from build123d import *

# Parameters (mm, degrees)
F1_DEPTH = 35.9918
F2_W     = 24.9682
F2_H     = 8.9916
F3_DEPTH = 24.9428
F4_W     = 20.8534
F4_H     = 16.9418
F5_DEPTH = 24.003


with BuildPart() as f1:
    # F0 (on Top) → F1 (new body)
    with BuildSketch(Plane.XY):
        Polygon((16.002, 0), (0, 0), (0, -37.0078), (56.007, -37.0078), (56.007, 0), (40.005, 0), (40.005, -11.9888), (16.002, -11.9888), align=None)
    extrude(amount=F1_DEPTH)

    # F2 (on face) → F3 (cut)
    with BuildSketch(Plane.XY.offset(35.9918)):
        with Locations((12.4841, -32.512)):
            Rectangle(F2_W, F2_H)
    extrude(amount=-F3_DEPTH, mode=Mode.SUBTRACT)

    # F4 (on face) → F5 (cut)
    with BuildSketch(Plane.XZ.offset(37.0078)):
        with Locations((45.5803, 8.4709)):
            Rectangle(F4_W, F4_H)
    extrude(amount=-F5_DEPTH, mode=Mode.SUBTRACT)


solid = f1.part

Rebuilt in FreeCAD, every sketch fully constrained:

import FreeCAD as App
import Part
import Sketcher
from FreeCAD import Vector
Q = App.Units.Quantity


def add_polygon(sketch, points):
    """Adds a closed chain of lines whose ends are joined by coincident constraints."""
    first, n = sketch.GeometryCount, len(points)
    for a, b in zip(points, points[1:] + points[:1]):
        sketch.addGeometry(Part.LineSegment(App.Vector(*a, 0), App.Vector(*b, 0)), False)
    for i in range(n):
        sketch.addConstraint(Sketcher.Constraint("Coincident", first + i, 2, first + (i + 1) % n, 1))

doc = App.newDocument("Part")
body = doc.addObject("PartDesign::Body", "Body")

sketch1 = doc.addObject("Sketcher::SketchObject", "Sketch")
body.addObject(sketch1)
sketch1.AttachmentSupport = (doc.XY_Plane, [""])
sketch1.MapMode = "FlatFace"
add_polygon(sketch1, [(16, 0), (0, 0), (0, -37), (56, -37), (56, 0), (40, 0), (40, -12), (16, -12)])
sketch1.addConstraint([
    Sketcher.Constraint("Horizontal", 0),
    Sketcher.Constraint("Vertical", 1),
    Sketcher.Constraint("Horizontal", 2),
    Sketcher.Constraint("Vertical", 3),
    Sketcher.Constraint("Horizontal", 4),
    Sketcher.Constraint("Vertical", 5),
    Sketcher.Constraint("Horizontal", 6),
    Sketcher.Constraint("Vertical", 7),
    Sketcher.Constraint("Coincident", 0, 2, -1, 1),
    Sketcher.Constraint("PointOnObject", 3, 2, -1),
    Sketcher.Constraint("Equal", 0, 4),
    Sketcher.Constraint("DistanceX", 0, 2, 0, 1, Q("0.63 in")),
    Sketcher.Constraint("DistanceX", 2, 1, 2, 2, Q("2.205 in")),
    Sketcher.Constraint("DistanceY", 1, 2, 1, 1, Q("1.457 in")),
    Sketcher.Constraint("DistanceY", 5, 2, 5, 1, Q("0.472 in")),
])
pad1 = doc.addObject("PartDesign::Pad", "Pad")
body.addObject(pad1)
pad1.Profile = sketch1
pad1.Length = Q("1.417 in")

sketch2 = doc.addObject("Sketcher::SketchObject", "Sketch001")
body.addObject(sketch2)
sketch2.AttachmentSupport = (doc.XY_Plane, [""])
sketch2.MapMode = "FlatFace"
sketch2.AttachmentOffset = App.Placement(Vector(0, 0, 1.417 * 25.4), App.Rotation())
add_polygon(sketch2, [(0, -28), (0, -37), (25, -37), (25, -28)])
sketch2.addConstraint([
    Sketcher.Constraint("Vertical", 0),
    Sketcher.Constraint("Horizontal", 1),
    Sketcher.Constraint("Vertical", 2),
    Sketcher.Constraint("Horizontal", 3),
    Sketcher.Constraint("PointOnObject", 0, 2, -2),
    Sketcher.Constraint("DistanceX", 1, 1, 1, 2, Q("0.983 in")),
    Sketcher.Constraint("DistanceY", 0, 2, 0, 1, Q("0.354 in")),
    Sketcher.Constraint("DistanceY", 0, 2, -1, 1, Q("1.457 in")),
])
pocket1 = doc.addObject("PartDesign::Pocket", "Pocket")
body.addObject(pocket1)
pocket1.Profile = sketch2
pocket1.Length = Q("0.982 in")

sketch3 = doc.addObject("Sketcher::SketchObject", "Sketch002")
body.addObject(sketch3)
sketch3.AttachmentSupport = (doc.XZ_Plane, [""])
sketch3.MapMode = "FlatFace"
sketch3.AttachmentOffset = App.Placement(Vector(0, 0, 1.457 * 25.4), App.Rotation())
add_polygon(sketch3, [(35, 17), (35, 0), (56, 0), (56, 17)])
sketch3.addConstraint([
    Sketcher.Constraint("Vertical", 0),
    Sketcher.Constraint("Horizontal", 1),
    Sketcher.Constraint("Vertical", 2),
    Sketcher.Constraint("Horizontal", 3),
    Sketcher.Constraint("PointOnObject", 0, 2, -1),
    Sketcher.Constraint("DistanceX", 1, 1, 1, 2, Q("0.821 in")),
    Sketcher.Constraint("DistanceY", 0, 2, 0, 1, Q("0.667 in")),
    Sketcher.Constraint("DistanceX", -1, 1, 0, 2, Q("1.384 in")),
])
pocket2 = doc.addObject("PartDesign::Pocket", "Pocket001")
body.addObject(pocket2)
pocket2.Profile = sketch3
pocket2.Length = Q("0.945 in")

doc.recompute()
